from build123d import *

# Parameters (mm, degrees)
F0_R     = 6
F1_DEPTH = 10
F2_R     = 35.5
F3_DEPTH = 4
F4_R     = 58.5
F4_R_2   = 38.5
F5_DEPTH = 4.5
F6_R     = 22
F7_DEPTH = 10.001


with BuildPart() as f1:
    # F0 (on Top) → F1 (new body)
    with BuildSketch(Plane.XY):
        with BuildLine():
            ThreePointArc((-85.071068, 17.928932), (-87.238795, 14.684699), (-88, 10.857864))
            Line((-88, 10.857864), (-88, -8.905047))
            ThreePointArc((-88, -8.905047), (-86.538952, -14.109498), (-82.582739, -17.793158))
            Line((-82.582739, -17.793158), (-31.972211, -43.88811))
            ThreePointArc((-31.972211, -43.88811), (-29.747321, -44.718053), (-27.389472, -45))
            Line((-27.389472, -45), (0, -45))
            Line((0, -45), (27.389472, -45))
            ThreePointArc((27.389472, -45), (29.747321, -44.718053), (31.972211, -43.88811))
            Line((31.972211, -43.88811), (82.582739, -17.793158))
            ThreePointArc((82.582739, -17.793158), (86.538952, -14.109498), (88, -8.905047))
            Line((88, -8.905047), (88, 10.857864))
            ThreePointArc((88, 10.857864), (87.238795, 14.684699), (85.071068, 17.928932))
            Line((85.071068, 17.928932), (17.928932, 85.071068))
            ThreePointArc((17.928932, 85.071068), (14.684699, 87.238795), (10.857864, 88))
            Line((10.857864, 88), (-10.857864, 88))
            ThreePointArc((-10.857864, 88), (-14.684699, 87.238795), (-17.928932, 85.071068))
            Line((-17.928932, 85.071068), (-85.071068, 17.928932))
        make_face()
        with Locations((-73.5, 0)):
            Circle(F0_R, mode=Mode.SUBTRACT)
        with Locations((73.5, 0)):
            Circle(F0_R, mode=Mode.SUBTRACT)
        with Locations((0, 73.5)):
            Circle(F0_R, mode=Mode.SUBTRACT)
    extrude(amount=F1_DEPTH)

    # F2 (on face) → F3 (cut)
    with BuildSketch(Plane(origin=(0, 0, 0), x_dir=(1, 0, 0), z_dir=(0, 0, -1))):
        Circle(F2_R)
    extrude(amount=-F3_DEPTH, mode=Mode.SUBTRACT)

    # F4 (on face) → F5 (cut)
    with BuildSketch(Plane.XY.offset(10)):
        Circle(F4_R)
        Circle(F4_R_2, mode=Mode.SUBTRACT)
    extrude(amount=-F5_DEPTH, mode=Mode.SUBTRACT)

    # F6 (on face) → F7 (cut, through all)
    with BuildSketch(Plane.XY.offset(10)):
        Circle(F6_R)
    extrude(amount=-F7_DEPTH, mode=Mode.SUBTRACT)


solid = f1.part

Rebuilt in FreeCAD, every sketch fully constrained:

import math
import FreeCAD as App
import Part
import Sketcher
Q = App.Units.Quantity

doc = App.newDocument("Part")
body = doc.addObject("PartDesign::Body", "Body")

# Sketch on XY plane
sketch1 = doc.addObject("Sketcher::SketchObject", "Sketch")
body.addObject(sketch1)
sketch1.AttachmentSupport = (doc.XY_Plane, [""])
sketch1.MapMode = "FlatFace"
sketch1.addGeometry([
    Part.ArcOfCircle(Part.Circle(App.Vector(-78, 10.9, 0), App.Vector(0, 0, 1), 10), math.radians(135), math.radians(180)),  # 0
    Part.LineSegment(App.Vector(-88, 10.9, 0), App.Vector(-88, -8.9, 0)),  # 1
    Part.ArcOfCircle(Part.Circle(App.Vector(-78, -8.9, 0), App.Vector(0, 0, 1), 10), math.radians(180), math.radians(243)),  # 2
    Part.LineSegment(App.Vector(-82.6, -17.8, 0), App.Vector(-32, -43.9, 0)),  # 3
    Part.ArcOfCircle(Part.Circle(App.Vector(-27.4, -35, 0), App.Vector(0, 0, 1), 10), math.radians(-117), math.radians(-90)),  # 4
    Part.LineSegment(App.Vector(-27.4, -45, 0), App.Vector(27.4, -45, 0)),  # 5
    Part.ArcOfCircle(Part.Circle(App.Vector(27.4, -35, 0), App.Vector(0, 0, 1), 10), math.radians(-90), math.radians(-63)),  # 6
    Part.LineSegment(App.Vector(32, -43.9, 0), App.Vector(82.6, -17.8, 0)),  # 7
    Part.ArcOfCircle(Part.Circle(App.Vector(78, -8.9, 0), App.Vector(0, 0, 1), 10), math.radians(-63), math.radians(0)),  # 8
    Part.LineSegment(App.Vector(88, -8.9, 0), App.Vector(88, 10.9, 0)),  # 9
    Part.ArcOfCircle(Part.Circle(App.Vector(78, 10.9, 0), App.Vector(0, 0, 1), 10), math.radians(0), math.radians(45)),  # 10
    Part.LineSegment(App.Vector(85.1, 17.9, 0), App.Vector(17.9, 85.1, 0)),  # 11
    Part.ArcOfCircle(Part.Circle(App.Vector(10.9, 78, 0), App.Vector(0, 0, 1), 10), math.radians(45), math.radians(90)),  # 12
    Part.LineSegment(App.Vector(10.9, 88, 0), App.Vector(-10.9, 88, 0)),  # 13
    Part.ArcOfCircle(Part.Circle(App.Vector(-10.9, 78, 0), App.Vector(0, 0, 1), 10), math.radians(90), math.radians(135)),  # 14
    Part.LineSegment(App.Vector(-17.9, 85.1, 0), App.Vector(-85.1, 17.9, 0)),  # 15
    Part.Circle(App.Vector(-73.5, 0, 0), App.Vector(0, 0, 1), 6),  # 16
    Part.Circle(App.Vector(73.5, 0, 0), App.Vector(0, 0, 1), 6),  # 17
    Part.Circle(App.Vector(0, 73.5, 0), App.Vector(0, 0, 1), 6),  # 18
], False)
sketch1.addConstraint([
    Sketcher.Constraint("Tangent", 0, 2, 1, 1),
    Sketcher.Constraint("Tangent", 1, 2, 2, 1),
    Sketcher.Constraint("Tangent", 2, 2, 3, 1),
    Sketcher.Constraint("Tangent", 3, 2, 4, 1),
    Sketcher.Constraint("Tangent", 4, 2, 5, 1),
    Sketcher.Constraint("Tangent", 5, 2, 6, 1),
    Sketcher.Constraint("Tangent", 6, 2, 7, 1),
    Sketcher.Constraint("Tangent", 7, 2, 8, 1),
    Sketcher.Constraint("Tangent", 8, 2, 9, 1),
    Sketcher.Constraint("Tangent", 9, 2, 10, 1),
    Sketcher.Constraint("Tangent", 10, 2, 11, 1),
    Sketcher.Constraint("Tangent", 11, 2, 12, 1),
    Sketcher.Constraint("Tangent", 12, 2, 13, 1),
    Sketcher.Constraint("Tangent", 13, 2, 14, 1),
    Sketcher.Constraint("Tangent", 14, 2, 15, 1),
    Sketcher.Constraint("Tangent", 15, 2, 0, 1),
    Sketcher.Constraint("Vertical", 1),
    Sketcher.Constraint("Horizontal", 5),
    Sketcher.Constraint("Vertical", 9),
    Sketcher.Constraint("Horizontal", 13),
    Sketcher.Constraint("Equal", 4, 6),
    Sketcher.Constraint("Equal", 2, 8),
    Sketcher.Constraint("Equal", 0, 10),
    Sketcher.Constraint("Equal", 10, 12),
    Sketcher.Constraint("Equal", 12, 14),
    Sketcher.Constraint("Equal", 16, 17),
    Sketcher.Constraint("Equal", 17, 18),
    Sketcher.Constraint("Symmetric", 16, 3, 17, 3, -1, 1),
    Sketcher.Constraint("Symmetric", 2, 3, 8, 3, -2),
    Sketcher.Constraint("Symmetric", 11, 2, 14, 2, -2),
    Sketcher.Constraint("PointOnObject", 16, 3, -1),
    Sketcher.Constraint("PointOnObject", 18, 3, -2),
    Sketcher.Constraint("Perpendicular", 11, 15),
    Sketcher.Constraint("Horizontal", 3, 2, 6, 2),
    Sketcher.Constraint("Diameter", 16, Q("12 mm")),
    Sketcher.Constraint("Radius", 2, Q("9.999999 mm")),
    Sketcher.Constraint("DistanceX", 2, 3, -1, 1, Q("78.000001 mm")),
    Sketcher.Constraint("DistanceY", 4, 2, -1, 1, Q("45 mm")),
    Sketcher.Constraint("DistanceY", -1, 1, 12, 2, Q("88 mm")),
    Sketcher.Constraint("DistanceX", 0, 3, 8, 3, Q("155.999999 mm")),
    Sketcher.Constraint("DistanceX", 16, 3, -1, 1, Q("73.5 mm")),
    Sketcher.Constraint("DistanceY", -1, 1, 18, 3, Q("73.5 mm")),
    Sketcher.Constraint("Radius", 4, Q("9.999986 mm")),
    Sketcher.Constraint("DistanceY", 1, 2, 1, 1, Q("19.762911 mm")),
    Sketcher.Constraint("Distance", 3, Q("56.941831 mm")),
    Sketcher.Constraint("Distance", 11, Q("94.953319 mm")),
])
pad1 = doc.addObject("PartDesign::Pad", "Pad")
body.addObject(pad1)
pad1.Profile = sketch1
pad1.Length = 10

# Sketch on XY plane
sketch2 = doc.addObject("Sketcher::SketchObject", "Sketch001")
body.addObject(sketch2)
sketch2.AttachmentSupport = (doc.XY_Plane, [""])
sketch2.MapMode = "FlatFace"
sketch2.addGeometry(Part.Circle(App.Vector(0, 0, 0), App.Vector(0, 0, 1), 36), False)
sketch2.addConstraint([
    Sketcher.Constraint("Coincident", 0, 3, -1, 1),
    Sketcher.Constraint("Diameter", 0, Q("71 mm")),
])
pocket1 = doc.addObject("PartDesign::Pocket", "Pocket")
body.addObject(pocket1)
pocket1.Profile = sketch2
pocket1.Length = 4
pocket1.Reversed = True

# Sketch on XY plane
sketch3 = doc.addObject("Sketcher::SketchObject", "Sketch002")
body.addObject(sketch3)
sketch3.AttachmentSupport = (doc.XY_Plane, [""])
sketch3.MapMode = "FlatFace"
sketch3.AttachmentOffset = App.Placement(App.Vector(0, 0, 10), App.Rotation())
sketch3.addGeometry([
    Part.Circle(App.Vector(0, 0, 0), App.Vector(0, 0, 1), 58),
    Part.Circle(App.Vector(0, 0, 0), App.Vector(0, 0, 1), 38),
], False)
sketch3.addConstraint([
    Sketcher.Constraint("Coincident", 0, 3, -1, 1),
    Sketcher.Constraint("Coincident", 1, 3, -1, 1),
    Sketcher.Constraint("Diameter", 0, Q("117 mm")),
    Sketcher.Constraint("Diameter", 1, Q("77 mm")),
])
pocket2 = doc.addObject("PartDesign::Pocket", "Pocket001")
body.addObject(pocket2)
pocket2.Profile = sketch3
pocket2.Length = 4.5

# Sketch on XY plane
sketch4 = doc.addObject("Sketcher::SketchObject", "Sketch003")
body.addObject(sketch4)
sketch4.AttachmentSupport = (doc.XY_Plane, [""])
sketch4.MapMode = "FlatFace"
sketch4.AttachmentOffset = App.Placement(App.Vector(0, 0, 10), App.Rotation())
sketch4.addGeometry(Part.Circle(App.Vector(0, 0, 0), App.Vector(0, 0, 1), 22), False)
sketch4.addConstraint([
    Sketcher.Constraint("Coincident", 0, 3, -1, 1),
    Sketcher.Constraint("Diameter", 0, Q("44 mm")),
])
pocket3 = doc.addObject("PartDesign::Pocket", "Pocket002")
body.addObject(pocket3)
pocket3.Profile = sketch4
pocket3.Type = "ThroughAll"

doc.recompute()
